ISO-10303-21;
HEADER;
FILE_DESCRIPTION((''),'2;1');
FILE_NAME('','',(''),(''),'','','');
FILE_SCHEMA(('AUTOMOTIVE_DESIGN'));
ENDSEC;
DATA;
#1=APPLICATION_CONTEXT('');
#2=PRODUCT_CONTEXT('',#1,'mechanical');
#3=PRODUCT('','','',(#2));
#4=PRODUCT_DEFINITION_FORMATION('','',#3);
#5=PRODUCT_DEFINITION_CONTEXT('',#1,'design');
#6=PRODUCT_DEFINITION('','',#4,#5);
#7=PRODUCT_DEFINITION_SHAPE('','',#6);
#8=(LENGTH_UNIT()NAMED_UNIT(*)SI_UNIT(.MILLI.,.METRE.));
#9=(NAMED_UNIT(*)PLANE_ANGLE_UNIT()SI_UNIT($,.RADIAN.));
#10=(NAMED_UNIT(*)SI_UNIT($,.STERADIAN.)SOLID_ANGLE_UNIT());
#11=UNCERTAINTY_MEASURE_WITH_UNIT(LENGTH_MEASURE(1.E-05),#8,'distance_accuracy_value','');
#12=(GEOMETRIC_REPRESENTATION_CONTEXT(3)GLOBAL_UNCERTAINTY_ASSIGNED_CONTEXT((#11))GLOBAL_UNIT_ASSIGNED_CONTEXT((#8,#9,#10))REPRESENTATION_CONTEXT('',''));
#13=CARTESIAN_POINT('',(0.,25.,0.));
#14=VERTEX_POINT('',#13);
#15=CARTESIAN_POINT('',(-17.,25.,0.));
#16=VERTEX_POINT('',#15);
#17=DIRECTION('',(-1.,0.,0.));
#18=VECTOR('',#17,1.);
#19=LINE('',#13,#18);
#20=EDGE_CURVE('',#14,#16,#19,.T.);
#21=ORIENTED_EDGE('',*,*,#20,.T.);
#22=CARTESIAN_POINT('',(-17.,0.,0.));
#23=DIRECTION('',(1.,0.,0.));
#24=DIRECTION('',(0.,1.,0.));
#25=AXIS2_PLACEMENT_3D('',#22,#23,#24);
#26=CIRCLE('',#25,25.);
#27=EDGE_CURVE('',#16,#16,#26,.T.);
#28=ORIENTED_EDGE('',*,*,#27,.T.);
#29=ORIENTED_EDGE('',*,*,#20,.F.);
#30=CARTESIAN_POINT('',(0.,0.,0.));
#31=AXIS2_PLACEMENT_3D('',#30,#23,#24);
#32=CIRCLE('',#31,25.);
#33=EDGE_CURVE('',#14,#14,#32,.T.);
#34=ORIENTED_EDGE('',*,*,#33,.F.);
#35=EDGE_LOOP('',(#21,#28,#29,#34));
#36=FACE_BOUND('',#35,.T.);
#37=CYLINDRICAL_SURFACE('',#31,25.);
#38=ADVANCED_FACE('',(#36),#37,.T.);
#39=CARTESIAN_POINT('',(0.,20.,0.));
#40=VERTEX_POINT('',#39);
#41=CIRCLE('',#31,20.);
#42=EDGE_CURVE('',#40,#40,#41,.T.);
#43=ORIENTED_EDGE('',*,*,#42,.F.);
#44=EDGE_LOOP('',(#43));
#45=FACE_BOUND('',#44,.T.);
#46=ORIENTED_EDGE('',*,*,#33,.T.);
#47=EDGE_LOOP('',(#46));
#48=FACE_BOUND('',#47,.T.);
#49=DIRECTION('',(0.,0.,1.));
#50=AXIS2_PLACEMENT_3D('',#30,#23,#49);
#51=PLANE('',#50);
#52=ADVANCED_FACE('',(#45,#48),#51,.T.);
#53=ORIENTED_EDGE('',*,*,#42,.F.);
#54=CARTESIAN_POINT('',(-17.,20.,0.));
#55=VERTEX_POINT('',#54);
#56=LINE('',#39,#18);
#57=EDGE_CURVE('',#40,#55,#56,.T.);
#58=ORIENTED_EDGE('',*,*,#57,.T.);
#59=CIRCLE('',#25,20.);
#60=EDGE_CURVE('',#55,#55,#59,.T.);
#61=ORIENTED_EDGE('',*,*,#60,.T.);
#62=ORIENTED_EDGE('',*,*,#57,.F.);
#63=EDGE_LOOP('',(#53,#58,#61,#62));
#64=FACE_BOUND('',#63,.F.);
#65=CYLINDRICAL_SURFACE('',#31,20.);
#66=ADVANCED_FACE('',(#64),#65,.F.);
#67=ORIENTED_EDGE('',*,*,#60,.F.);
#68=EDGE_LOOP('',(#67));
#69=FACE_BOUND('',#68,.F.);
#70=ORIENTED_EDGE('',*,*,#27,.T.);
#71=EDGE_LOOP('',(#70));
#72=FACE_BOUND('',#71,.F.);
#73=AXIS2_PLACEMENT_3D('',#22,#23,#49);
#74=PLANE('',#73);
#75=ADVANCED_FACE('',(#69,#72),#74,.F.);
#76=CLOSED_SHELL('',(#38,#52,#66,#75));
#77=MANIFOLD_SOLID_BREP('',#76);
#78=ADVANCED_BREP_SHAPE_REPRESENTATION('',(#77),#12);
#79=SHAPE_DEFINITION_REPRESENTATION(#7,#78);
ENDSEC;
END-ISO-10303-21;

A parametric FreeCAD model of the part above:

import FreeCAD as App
import Part
import Sketcher
from FreeCAD import Vector

doc = App.newDocument("Part")
params = doc.addObject("Spreadsheet::Sheet", "Params")
for row, (alias, value) in enumerate([
    ("sketch1_diameter", "50 mm"),
    ("sketch1_diameter2", "40 mm"),
    ("pad1_length", "17 mm"),
], start=1):
    params.set(f"A{row}", alias)
    params.set(f"B{row}", "=" + value)
    params.setAlias(f"B{row}", alias)

body = doc.addObject("PartDesign::Body", "Body")

sketch1 = body.newObject("Sketcher::SketchObject", "Sketch")
sketch1.AttachmentSupport = (doc.getObject("YZ_Plane"), [""])
sketch1.MapMode = "FlatFace"
sketch1.addGeometry(Part.Circle(Vector(0, 0, 0), Vector(0, 0, 1), 25), False)
sketch1.addGeometry(Part.Circle(Vector(0, 0, 0), Vector(0, 0, 1), 20), False)
sketch1.addConstraint(Sketcher.Constraint("Coincident", 0, 3, -1, 1))
sketch1.addConstraint(Sketcher.Constraint("Coincident", 1, 3, -1, 1))
sketch1.addConstraint(Sketcher.Constraint("Diameter", 0, 50.0))
sketch1.addConstraint(Sketcher.Constraint("Diameter", 1, 40.0))
sketch1.setExpression("Constraints[2]", "Params.sketch1_diameter")
sketch1.setExpression("Constraints[3]", "Params.sketch1_diameter2")
pad1 = body.newObject("PartDesign::Pad", "Pad")
pad1.Profile = sketch1
pad1.setExpression("Length", "Params.pad1_length")
pad1.Reversed = True

doc.recompute()
